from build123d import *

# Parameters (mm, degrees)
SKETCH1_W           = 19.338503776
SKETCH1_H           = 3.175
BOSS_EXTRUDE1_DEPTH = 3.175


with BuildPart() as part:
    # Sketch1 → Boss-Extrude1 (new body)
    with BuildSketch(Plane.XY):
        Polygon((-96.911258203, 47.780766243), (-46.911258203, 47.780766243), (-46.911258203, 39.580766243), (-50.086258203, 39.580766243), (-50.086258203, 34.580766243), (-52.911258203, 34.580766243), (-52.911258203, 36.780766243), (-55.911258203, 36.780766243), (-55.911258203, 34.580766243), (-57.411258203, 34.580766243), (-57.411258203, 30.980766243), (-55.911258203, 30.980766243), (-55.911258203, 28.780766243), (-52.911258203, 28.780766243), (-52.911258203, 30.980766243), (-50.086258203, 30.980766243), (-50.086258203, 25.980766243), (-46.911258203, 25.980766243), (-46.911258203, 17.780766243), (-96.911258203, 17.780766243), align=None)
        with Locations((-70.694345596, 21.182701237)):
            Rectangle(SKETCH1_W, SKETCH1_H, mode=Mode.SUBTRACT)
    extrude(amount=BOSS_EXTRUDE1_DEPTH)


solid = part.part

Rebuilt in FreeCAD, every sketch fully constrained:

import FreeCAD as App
import Part
import Sketcher
from FreeCAD import Vector


def add_polygon(sketch, points):
    """Adds a closed chain of lines whose ends are joined by coincident constraints."""
    first, n = sketch.GeometryCount, len(points)
    for a, b in zip(points, points[1:] + points[:1]):
        sketch.addGeometry(Part.LineSegment(App.Vector(*a, 0), App.Vector(*b, 0)), False)
    for i in range(n):
        sketch.addConstraint(Sketcher.Constraint("Coincident", first + i, 2, first + (i + 1) % n, 1))

doc = App.newDocument("Part")
body = doc.addObject("PartDesign::Body", "Body")

# Sketch on XY plane
sketch1 = body.newObject("Sketcher::SketchObject", "Sketch")
sketch1.AttachmentSupport = (doc.getObject("XY_Plane"), [""])
sketch1.MapMode = "FlatFace"
add_polygon(sketch1, [(-46.9, 47.8), (-96.9, 47.8), (-96.9, 17.8), (-46.9, 17.8), (-46.9, 26), (-50.1, 26), (-50.1, 31), (-52.9, 31), (-52.9, 28.8), (-55.9, 28.8), (-55.9, 31), (-57.4, 31), (-57.4, 34.6), (-55.9, 34.6), (-55.9, 36.8), (-52.9, 36.8), (-52.9, 34.6), (-50.1, 34.6), (-50.1, 39.6), (-46.9, 39.6)])  # lines 0-19
add_polygon(sketch1, [(-80.4, 19.6), (-80.4, 22.8), (-61, 22.8), (-61, 19.6)])  # lines 20-23
sketch1.addConstraint(Sketcher.Constraint("Horizontal", 0))
sketch1.addConstraint(Sketcher.Constraint("Vertical", 1))
sketch1.addConstraint(Sketcher.Constraint("Horizontal", 2))
sketch1.addConstraint(Sketcher.Constraint("Vertical", 3))
sketch1.addConstraint(Sketcher.Constraint("Horizontal", 4))
sketch1.addConstraint(Sketcher.Constraint("Vertical", 5))
sketch1.addConstraint(Sketcher.Constraint("Horizontal", 6))
sketch1.addConstraint(Sketcher.Constraint("Vertical", 7))
sketch1.addConstraint(Sketcher.Constraint("Horizontal", 8))
sketch1.addConstraint(Sketcher.Constraint("Vertical", 9))
sketch1.addConstraint(Sketcher.Constraint("Horizontal", 10))
sketch1.addConstraint(Sketcher.Constraint("Vertical", 11))
sketch1.addConstraint(Sketcher.Constraint("Horizontal", 12))
sketch1.addConstraint(Sketcher.Constraint("Vertical", 13))
sketch1.addConstraint(Sketcher.Constraint("Horizontal", 14))
sketch1.addConstraint(Sketcher.Constraint("Vertical", 15))
sketch1.addConstraint(Sketcher.Constraint("Horizontal", 16))
sketch1.addConstraint(Sketcher.Constraint("Vertical", 17))
sketch1.addConstraint(Sketcher.Constraint("Horizontal", 18))
sketch1.addConstraint(Sketcher.Constraint("Vertical", 19))
sketch1.addConstraint(Sketcher.Constraint("Vertical", 20))
sketch1.addConstraint(Sketcher.Constraint("Horizontal", 21))
sketch1.addConstraint(Sketcher.Constraint("Vertical", 22))
sketch1.addConstraint(Sketcher.Constraint("Horizontal", 23))
sketch1.addConstraint(Sketcher.Constraint("Horizontal", 6, 2, 9, 2))
sketch1.addConstraint(Sketcher.Constraint("Horizontal", 12, 2, 15, 2))
sketch1.addConstraint(Sketcher.Constraint("Vertical", 9, 2, 12, 2))
sketch1.addConstraint(Sketcher.Constraint("Vertical", 7, 2, 14, 2))
sketch1.addConstraint(Sketcher.Constraint("Vertical", 5, 2, 16, 2))
sketch1.addConstraint(Sketcher.Constraint("Vertical", 3, 2, 18, 2))
sketch1.addConstraint(Sketcher.Constraint("Equal", 9, 13))
sketch1.addConstraint(Sketcher.Constraint("Equal", 5, 17))
sketch1.addConstraint(Sketcher.Constraint("Equal", 3, 19))
sketch1.addConstraint(Sketcher.Constraint("Equal", 18, 20))
sketch1.addConstraint(Sketcher.Constraint("DistanceX", 0, 2, 0, 1, 50.0))
sketch1.addConstraint(Sketcher.Constraint("DistanceX", 8, 2, 8, 1, 3.0))
sketch1.addConstraint(Sketcher.Constraint("DistanceY", 1, 2, 1, 1, 30.0))
sketch1.addConstraint(Sketcher.Constraint("DistanceY", 5, 1, 5, 2, 5.0))
sketch1.addConstraint(Sketcher.Constraint("DistanceX", 10, 2, 10, 1, 1.5))
sketch1.addConstraint(Sketcher.Constraint("DistanceY", 3, 1, 3, 2, 8.2))
sketch1.addConstraint(Sketcher.Constraint("DistanceY", 7, 2, 7, 1, 2.2))
sketch1.addConstraint(Sketcher.Constraint("DistanceX", 6, 2, 3, 2, 6.0))
sketch1.addConstraint(Sketcher.Constraint("DistanceX", 4, 2, 4, 1, 3.175))
sketch1.addConstraint(Sketcher.Constraint("DistanceY", -1, 1, 20, 2, 22.770201))
sketch1.addConstraint(Sketcher.Constraint("DistanceX", 21, 1, 21, 2, 19.338504))
sketch1.addConstraint(Sketcher.Constraint("DistanceX", 0, 2, -1, 1, 96.911258))
sketch1.addConstraint(Sketcher.Constraint("DistanceX", 1, 2, 20, 2, 16.547661))
sketch1.addConstraint(Sketcher.Constraint("DistanceY", -1, 1, 0, 2, 47.780766))
pad1 = body.newObject("PartDesign::Pad", "Pad")
pad1.Profile = sketch1
pad1.Length = 3.175

doc.recompute()
